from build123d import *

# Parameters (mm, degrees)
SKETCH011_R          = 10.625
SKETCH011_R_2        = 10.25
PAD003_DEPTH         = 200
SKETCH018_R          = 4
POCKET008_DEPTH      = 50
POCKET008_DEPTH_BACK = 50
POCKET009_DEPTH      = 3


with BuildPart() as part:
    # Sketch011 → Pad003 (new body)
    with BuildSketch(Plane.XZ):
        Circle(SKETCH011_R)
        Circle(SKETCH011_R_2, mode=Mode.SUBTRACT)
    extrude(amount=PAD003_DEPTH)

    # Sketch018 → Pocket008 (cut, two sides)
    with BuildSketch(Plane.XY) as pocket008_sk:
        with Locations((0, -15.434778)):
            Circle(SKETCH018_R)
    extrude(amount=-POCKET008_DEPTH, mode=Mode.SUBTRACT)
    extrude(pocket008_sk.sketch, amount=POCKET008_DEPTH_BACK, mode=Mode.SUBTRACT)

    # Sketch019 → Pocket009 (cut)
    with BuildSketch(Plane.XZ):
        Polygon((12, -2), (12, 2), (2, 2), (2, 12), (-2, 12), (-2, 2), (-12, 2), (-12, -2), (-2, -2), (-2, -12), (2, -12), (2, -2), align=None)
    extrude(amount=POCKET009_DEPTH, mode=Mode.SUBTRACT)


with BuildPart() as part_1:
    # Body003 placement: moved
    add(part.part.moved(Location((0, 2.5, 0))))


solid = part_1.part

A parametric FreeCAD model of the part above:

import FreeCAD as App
import Part
import Sketcher

V = App.Vector
Q = App.Units.Quantity

doc = App.newDocument("Part")
params = doc.addObject("Spreadsheet::Sheet", "Params")
for row, (alias, value) in enumerate([
    ("sketch1_diameter", "20.5 mm"),
    ("sketch1_diameter2", "21.25 mm"),
    ("pad1_length", "200 mm"),
    ("sketch2_diameter", "8 mm"),
    ("sketch3_width", "10 mm"),
    ("sketch3_width2", "4 mm"),
    ("pocket2_length", "3 mm"),
], start=1):
    params.set(f"A{row}", alias)
    params.set(f"B{row}", "=" + value)
    params.setAlias(f"B{row}", alias)

body = doc.addObject("PartDesign::Body", "Body")

sketch1 = body.newObject("Sketcher::SketchObject", "Sketch")
sketch1.AttachmentSupport = (doc.getObject("XZ_Plane"), [""])
sketch1.MapMode = "FlatFace"
sketch1.addGeometry(Part.Circle(V(0, 0, 0), V(0, 0, 1), 11), False)
sketch1.addGeometry(Part.Circle(V(0, 0, 0), V(0, 0, 1), 10), False)
sketch1.addConstraint(Sketcher.Constraint("Coincident", 0, 3, -1, 1))
sketch1.addConstraint(Sketcher.Constraint("Coincident", 1, 3, -1, 1))
sketch1.addConstraint(Sketcher.Constraint("Diameter", 1, Q("20.5 mm")))
sketch1.addConstraint(Sketcher.Constraint("Diameter", 0, Q("21.25 mm")))
sketch1.setExpression("Constraints[2]", "Params.sketch1_diameter")
sketch1.setExpression("Constraints[3]", "Params.sketch1_diameter2")
pad1 = body.newObject("PartDesign::Pad", "Pad")
pad1.Profile = sketch1
pad1.setExpression("Length", "Params.pad1_length")

sketch2 = body.newObject("Sketcher::SketchObject", "Sketch001")
sketch2.AttachmentSupport = (doc.getObject("XY_Plane"), [""])
sketch2.MapMode = "FlatFace"
sketch2.addGeometry(Part.Circle(V(0, -15.4, 0), V(0, 0, 1), 4), False)
sketch2.addConstraint(Sketcher.Constraint("PointOnObject", 0, 3, -2))
sketch2.addConstraint(Sketcher.Constraint("Diameter", 0, Q("8 mm")))
sketch2.addConstraint(Sketcher.Constraint("DistanceY", 0, 3, -1, 1, Q("15.434778 mm")))
sketch2.setExpression("Constraints[1]", "Params.sketch2_diameter")
pocket1 = body.newObject("PartDesign::Pocket", "Pocket")
pocket1.Profile = sketch2
pocket1.Type = "ThroughAll"
pocket1.Midplane = True

sketch3 = body.newObject("Sketcher::SketchObject", "Sketch002")
sketch3.AttachmentSupport = (doc.getObject("XZ_Plane"), [""])
sketch3.MapMode = "FlatFace"
sketch3.addGeometry(Part.LineSegment(V(12, -2, 0), V(12, 2, 0)), False)
sketch3.addGeometry(Part.LineSegment(V(12, 2, 0), V(2, 2, 0)), False)
sketch3.addGeometry(Part.LineSegment(V(2, 2, 0), V(2, 12, 0)), False)
sketch3.addGeometry(Part.LineSegment(V(2, 12, 0), V(-2, 12, 0)), False)
sketch3.addGeometry(Part.LineSegment(V(-2, 12, 0), V(-2, 2, 0)), False)
sketch3.addGeometry(Part.LineSegment(V(-2, 2, 0), V(-12, 2, 0)), False)
sketch3.addGeometry(Part.LineSegment(V(-12, 2, 0), V(-12, -2, 0)), False)
sketch3.addGeometry(Part.LineSegment(V(-12, -2, 0), V(-2, -2, 0)), False)
sketch3.addGeometry(Part.LineSegment(V(-2, -2, 0), V(-2, -12, 0)), False)
sketch3.addGeometry(Part.LineSegment(V(-2, -12, 0), V(2, -12, 0)), False)
sketch3.addGeometry(Part.LineSegment(V(2, -12, 0), V(2, -2, 0)), False)
sketch3.addGeometry(Part.LineSegment(V(2, -2, 0), V(12, -2, 0)), False)
sketch3.addConstraint(Sketcher.Constraint("Coincident", 0, 2, 1, 1))
sketch3.addConstraint(Sketcher.Constraint("Coincident", 1, 2, 2, 1))
sketch3.addConstraint(Sketcher.Constraint("Coincident", 2, 2, 3, 1))
sketch3.addConstraint(Sketcher.Constraint("Coincident", 3, 2, 4, 1))
sketch3.addConstraint(Sketcher.Constraint("Coincident", 4, 2, 5, 1))
sketch3.addConstraint(Sketcher.Constraint("Coincident", 5, 2, 6, 1))
sketch3.addConstraint(Sketcher.Constraint("Coincident", 6, 2, 7, 1))
sketch3.addConstraint(Sketcher.Constraint("Coincident", 7, 2, 8, 1))
sketch3.addConstraint(Sketcher.Constraint("Coincident", 8, 2, 9, 1))
sketch3.addConstraint(Sketcher.Constraint("Coincident", 9, 2, 10, 1))
sketch3.addConstraint(Sketcher.Constraint("Coincident", 10, 2, 11, 1))
sketch3.addConstraint(Sketcher.Constraint("Coincident", 11, 2, 0, 1))
sketch3.addConstraint(Sketcher.Constraint("Vertical", 0))
sketch3.addConstraint(Sketcher.Constraint("Horizontal", 1))
sketch3.addConstraint(Sketcher.Constraint("Vertical", 2))
sketch3.addConstraint(Sketcher.Constraint("Horizontal", 3))
sketch3.addConstraint(Sketcher.Constraint("Vertical", 4))
sketch3.addConstraint(Sketcher.Constraint("Horizontal", 5))
sketch3.addConstraint(Sketcher.Constraint("Vertical", 6))
sketch3.addConstraint(Sketcher.Constraint("Horizontal", 7))
sketch3.addConstraint(Sketcher.Constraint("Vertical", 8))
sketch3.addConstraint(Sketcher.Constraint("Horizontal", 9))
sketch3.addConstraint(Sketcher.Constraint("Vertical", 10))
sketch3.addConstraint(Sketcher.Constraint("Horizontal", 11))
sketch3.addConstraint(Sketcher.Constraint("Symmetric", 0, 2, 6, 2, -1, 1))
sketch3.addConstraint(Sketcher.Constraint("Symmetric", 2, 2, 8, 2, -1, 1))
sketch3.addConstraint(Sketcher.Constraint("Symmetric", 4, 2, 10, 2, -1, 1))
sketch3.addConstraint(Sketcher.Constraint("Symmetric", 1, 2, 4, 2, -2))
sketch3.addConstraint(Sketcher.Constraint("Equal", 9, 0))
sketch3.addConstraint(Sketcher.Constraint("Equal", 11, 2))
sketch3.addConstraint(Sketcher.Constraint("DistanceX", 1, 2, 1, 1, Q("10 mm")))
sketch3.addConstraint(Sketcher.Constraint("DistanceX", 3, 2, 3, 1, Q("4 mm")))
sketch3.setExpression("Constraints[30]", "Params.sketch3_width")
sketch3.setExpression("Constraints[31]", "Params.sketch3_width2")
pocket2 = body.newObject("PartDesign::Pocket", "Pocket001")
pocket2.Profile = sketch3
pocket2.setExpression("Length", "Params.pocket2_length")
pocket2.Reversed = True
body2 = doc.addObject("PartDesign::Body", "Body001")
doc.recompute()

body.Placement = App.Placement(V(0, 2.5, 0), App.Rotation(V(0, 0, 1), 0))
boolean = body2.newObject("PartDesign::Boolean", "Boolean")
boolean.Type = "Fuse"
boolean.addObjects([body])

doc.recompute()
